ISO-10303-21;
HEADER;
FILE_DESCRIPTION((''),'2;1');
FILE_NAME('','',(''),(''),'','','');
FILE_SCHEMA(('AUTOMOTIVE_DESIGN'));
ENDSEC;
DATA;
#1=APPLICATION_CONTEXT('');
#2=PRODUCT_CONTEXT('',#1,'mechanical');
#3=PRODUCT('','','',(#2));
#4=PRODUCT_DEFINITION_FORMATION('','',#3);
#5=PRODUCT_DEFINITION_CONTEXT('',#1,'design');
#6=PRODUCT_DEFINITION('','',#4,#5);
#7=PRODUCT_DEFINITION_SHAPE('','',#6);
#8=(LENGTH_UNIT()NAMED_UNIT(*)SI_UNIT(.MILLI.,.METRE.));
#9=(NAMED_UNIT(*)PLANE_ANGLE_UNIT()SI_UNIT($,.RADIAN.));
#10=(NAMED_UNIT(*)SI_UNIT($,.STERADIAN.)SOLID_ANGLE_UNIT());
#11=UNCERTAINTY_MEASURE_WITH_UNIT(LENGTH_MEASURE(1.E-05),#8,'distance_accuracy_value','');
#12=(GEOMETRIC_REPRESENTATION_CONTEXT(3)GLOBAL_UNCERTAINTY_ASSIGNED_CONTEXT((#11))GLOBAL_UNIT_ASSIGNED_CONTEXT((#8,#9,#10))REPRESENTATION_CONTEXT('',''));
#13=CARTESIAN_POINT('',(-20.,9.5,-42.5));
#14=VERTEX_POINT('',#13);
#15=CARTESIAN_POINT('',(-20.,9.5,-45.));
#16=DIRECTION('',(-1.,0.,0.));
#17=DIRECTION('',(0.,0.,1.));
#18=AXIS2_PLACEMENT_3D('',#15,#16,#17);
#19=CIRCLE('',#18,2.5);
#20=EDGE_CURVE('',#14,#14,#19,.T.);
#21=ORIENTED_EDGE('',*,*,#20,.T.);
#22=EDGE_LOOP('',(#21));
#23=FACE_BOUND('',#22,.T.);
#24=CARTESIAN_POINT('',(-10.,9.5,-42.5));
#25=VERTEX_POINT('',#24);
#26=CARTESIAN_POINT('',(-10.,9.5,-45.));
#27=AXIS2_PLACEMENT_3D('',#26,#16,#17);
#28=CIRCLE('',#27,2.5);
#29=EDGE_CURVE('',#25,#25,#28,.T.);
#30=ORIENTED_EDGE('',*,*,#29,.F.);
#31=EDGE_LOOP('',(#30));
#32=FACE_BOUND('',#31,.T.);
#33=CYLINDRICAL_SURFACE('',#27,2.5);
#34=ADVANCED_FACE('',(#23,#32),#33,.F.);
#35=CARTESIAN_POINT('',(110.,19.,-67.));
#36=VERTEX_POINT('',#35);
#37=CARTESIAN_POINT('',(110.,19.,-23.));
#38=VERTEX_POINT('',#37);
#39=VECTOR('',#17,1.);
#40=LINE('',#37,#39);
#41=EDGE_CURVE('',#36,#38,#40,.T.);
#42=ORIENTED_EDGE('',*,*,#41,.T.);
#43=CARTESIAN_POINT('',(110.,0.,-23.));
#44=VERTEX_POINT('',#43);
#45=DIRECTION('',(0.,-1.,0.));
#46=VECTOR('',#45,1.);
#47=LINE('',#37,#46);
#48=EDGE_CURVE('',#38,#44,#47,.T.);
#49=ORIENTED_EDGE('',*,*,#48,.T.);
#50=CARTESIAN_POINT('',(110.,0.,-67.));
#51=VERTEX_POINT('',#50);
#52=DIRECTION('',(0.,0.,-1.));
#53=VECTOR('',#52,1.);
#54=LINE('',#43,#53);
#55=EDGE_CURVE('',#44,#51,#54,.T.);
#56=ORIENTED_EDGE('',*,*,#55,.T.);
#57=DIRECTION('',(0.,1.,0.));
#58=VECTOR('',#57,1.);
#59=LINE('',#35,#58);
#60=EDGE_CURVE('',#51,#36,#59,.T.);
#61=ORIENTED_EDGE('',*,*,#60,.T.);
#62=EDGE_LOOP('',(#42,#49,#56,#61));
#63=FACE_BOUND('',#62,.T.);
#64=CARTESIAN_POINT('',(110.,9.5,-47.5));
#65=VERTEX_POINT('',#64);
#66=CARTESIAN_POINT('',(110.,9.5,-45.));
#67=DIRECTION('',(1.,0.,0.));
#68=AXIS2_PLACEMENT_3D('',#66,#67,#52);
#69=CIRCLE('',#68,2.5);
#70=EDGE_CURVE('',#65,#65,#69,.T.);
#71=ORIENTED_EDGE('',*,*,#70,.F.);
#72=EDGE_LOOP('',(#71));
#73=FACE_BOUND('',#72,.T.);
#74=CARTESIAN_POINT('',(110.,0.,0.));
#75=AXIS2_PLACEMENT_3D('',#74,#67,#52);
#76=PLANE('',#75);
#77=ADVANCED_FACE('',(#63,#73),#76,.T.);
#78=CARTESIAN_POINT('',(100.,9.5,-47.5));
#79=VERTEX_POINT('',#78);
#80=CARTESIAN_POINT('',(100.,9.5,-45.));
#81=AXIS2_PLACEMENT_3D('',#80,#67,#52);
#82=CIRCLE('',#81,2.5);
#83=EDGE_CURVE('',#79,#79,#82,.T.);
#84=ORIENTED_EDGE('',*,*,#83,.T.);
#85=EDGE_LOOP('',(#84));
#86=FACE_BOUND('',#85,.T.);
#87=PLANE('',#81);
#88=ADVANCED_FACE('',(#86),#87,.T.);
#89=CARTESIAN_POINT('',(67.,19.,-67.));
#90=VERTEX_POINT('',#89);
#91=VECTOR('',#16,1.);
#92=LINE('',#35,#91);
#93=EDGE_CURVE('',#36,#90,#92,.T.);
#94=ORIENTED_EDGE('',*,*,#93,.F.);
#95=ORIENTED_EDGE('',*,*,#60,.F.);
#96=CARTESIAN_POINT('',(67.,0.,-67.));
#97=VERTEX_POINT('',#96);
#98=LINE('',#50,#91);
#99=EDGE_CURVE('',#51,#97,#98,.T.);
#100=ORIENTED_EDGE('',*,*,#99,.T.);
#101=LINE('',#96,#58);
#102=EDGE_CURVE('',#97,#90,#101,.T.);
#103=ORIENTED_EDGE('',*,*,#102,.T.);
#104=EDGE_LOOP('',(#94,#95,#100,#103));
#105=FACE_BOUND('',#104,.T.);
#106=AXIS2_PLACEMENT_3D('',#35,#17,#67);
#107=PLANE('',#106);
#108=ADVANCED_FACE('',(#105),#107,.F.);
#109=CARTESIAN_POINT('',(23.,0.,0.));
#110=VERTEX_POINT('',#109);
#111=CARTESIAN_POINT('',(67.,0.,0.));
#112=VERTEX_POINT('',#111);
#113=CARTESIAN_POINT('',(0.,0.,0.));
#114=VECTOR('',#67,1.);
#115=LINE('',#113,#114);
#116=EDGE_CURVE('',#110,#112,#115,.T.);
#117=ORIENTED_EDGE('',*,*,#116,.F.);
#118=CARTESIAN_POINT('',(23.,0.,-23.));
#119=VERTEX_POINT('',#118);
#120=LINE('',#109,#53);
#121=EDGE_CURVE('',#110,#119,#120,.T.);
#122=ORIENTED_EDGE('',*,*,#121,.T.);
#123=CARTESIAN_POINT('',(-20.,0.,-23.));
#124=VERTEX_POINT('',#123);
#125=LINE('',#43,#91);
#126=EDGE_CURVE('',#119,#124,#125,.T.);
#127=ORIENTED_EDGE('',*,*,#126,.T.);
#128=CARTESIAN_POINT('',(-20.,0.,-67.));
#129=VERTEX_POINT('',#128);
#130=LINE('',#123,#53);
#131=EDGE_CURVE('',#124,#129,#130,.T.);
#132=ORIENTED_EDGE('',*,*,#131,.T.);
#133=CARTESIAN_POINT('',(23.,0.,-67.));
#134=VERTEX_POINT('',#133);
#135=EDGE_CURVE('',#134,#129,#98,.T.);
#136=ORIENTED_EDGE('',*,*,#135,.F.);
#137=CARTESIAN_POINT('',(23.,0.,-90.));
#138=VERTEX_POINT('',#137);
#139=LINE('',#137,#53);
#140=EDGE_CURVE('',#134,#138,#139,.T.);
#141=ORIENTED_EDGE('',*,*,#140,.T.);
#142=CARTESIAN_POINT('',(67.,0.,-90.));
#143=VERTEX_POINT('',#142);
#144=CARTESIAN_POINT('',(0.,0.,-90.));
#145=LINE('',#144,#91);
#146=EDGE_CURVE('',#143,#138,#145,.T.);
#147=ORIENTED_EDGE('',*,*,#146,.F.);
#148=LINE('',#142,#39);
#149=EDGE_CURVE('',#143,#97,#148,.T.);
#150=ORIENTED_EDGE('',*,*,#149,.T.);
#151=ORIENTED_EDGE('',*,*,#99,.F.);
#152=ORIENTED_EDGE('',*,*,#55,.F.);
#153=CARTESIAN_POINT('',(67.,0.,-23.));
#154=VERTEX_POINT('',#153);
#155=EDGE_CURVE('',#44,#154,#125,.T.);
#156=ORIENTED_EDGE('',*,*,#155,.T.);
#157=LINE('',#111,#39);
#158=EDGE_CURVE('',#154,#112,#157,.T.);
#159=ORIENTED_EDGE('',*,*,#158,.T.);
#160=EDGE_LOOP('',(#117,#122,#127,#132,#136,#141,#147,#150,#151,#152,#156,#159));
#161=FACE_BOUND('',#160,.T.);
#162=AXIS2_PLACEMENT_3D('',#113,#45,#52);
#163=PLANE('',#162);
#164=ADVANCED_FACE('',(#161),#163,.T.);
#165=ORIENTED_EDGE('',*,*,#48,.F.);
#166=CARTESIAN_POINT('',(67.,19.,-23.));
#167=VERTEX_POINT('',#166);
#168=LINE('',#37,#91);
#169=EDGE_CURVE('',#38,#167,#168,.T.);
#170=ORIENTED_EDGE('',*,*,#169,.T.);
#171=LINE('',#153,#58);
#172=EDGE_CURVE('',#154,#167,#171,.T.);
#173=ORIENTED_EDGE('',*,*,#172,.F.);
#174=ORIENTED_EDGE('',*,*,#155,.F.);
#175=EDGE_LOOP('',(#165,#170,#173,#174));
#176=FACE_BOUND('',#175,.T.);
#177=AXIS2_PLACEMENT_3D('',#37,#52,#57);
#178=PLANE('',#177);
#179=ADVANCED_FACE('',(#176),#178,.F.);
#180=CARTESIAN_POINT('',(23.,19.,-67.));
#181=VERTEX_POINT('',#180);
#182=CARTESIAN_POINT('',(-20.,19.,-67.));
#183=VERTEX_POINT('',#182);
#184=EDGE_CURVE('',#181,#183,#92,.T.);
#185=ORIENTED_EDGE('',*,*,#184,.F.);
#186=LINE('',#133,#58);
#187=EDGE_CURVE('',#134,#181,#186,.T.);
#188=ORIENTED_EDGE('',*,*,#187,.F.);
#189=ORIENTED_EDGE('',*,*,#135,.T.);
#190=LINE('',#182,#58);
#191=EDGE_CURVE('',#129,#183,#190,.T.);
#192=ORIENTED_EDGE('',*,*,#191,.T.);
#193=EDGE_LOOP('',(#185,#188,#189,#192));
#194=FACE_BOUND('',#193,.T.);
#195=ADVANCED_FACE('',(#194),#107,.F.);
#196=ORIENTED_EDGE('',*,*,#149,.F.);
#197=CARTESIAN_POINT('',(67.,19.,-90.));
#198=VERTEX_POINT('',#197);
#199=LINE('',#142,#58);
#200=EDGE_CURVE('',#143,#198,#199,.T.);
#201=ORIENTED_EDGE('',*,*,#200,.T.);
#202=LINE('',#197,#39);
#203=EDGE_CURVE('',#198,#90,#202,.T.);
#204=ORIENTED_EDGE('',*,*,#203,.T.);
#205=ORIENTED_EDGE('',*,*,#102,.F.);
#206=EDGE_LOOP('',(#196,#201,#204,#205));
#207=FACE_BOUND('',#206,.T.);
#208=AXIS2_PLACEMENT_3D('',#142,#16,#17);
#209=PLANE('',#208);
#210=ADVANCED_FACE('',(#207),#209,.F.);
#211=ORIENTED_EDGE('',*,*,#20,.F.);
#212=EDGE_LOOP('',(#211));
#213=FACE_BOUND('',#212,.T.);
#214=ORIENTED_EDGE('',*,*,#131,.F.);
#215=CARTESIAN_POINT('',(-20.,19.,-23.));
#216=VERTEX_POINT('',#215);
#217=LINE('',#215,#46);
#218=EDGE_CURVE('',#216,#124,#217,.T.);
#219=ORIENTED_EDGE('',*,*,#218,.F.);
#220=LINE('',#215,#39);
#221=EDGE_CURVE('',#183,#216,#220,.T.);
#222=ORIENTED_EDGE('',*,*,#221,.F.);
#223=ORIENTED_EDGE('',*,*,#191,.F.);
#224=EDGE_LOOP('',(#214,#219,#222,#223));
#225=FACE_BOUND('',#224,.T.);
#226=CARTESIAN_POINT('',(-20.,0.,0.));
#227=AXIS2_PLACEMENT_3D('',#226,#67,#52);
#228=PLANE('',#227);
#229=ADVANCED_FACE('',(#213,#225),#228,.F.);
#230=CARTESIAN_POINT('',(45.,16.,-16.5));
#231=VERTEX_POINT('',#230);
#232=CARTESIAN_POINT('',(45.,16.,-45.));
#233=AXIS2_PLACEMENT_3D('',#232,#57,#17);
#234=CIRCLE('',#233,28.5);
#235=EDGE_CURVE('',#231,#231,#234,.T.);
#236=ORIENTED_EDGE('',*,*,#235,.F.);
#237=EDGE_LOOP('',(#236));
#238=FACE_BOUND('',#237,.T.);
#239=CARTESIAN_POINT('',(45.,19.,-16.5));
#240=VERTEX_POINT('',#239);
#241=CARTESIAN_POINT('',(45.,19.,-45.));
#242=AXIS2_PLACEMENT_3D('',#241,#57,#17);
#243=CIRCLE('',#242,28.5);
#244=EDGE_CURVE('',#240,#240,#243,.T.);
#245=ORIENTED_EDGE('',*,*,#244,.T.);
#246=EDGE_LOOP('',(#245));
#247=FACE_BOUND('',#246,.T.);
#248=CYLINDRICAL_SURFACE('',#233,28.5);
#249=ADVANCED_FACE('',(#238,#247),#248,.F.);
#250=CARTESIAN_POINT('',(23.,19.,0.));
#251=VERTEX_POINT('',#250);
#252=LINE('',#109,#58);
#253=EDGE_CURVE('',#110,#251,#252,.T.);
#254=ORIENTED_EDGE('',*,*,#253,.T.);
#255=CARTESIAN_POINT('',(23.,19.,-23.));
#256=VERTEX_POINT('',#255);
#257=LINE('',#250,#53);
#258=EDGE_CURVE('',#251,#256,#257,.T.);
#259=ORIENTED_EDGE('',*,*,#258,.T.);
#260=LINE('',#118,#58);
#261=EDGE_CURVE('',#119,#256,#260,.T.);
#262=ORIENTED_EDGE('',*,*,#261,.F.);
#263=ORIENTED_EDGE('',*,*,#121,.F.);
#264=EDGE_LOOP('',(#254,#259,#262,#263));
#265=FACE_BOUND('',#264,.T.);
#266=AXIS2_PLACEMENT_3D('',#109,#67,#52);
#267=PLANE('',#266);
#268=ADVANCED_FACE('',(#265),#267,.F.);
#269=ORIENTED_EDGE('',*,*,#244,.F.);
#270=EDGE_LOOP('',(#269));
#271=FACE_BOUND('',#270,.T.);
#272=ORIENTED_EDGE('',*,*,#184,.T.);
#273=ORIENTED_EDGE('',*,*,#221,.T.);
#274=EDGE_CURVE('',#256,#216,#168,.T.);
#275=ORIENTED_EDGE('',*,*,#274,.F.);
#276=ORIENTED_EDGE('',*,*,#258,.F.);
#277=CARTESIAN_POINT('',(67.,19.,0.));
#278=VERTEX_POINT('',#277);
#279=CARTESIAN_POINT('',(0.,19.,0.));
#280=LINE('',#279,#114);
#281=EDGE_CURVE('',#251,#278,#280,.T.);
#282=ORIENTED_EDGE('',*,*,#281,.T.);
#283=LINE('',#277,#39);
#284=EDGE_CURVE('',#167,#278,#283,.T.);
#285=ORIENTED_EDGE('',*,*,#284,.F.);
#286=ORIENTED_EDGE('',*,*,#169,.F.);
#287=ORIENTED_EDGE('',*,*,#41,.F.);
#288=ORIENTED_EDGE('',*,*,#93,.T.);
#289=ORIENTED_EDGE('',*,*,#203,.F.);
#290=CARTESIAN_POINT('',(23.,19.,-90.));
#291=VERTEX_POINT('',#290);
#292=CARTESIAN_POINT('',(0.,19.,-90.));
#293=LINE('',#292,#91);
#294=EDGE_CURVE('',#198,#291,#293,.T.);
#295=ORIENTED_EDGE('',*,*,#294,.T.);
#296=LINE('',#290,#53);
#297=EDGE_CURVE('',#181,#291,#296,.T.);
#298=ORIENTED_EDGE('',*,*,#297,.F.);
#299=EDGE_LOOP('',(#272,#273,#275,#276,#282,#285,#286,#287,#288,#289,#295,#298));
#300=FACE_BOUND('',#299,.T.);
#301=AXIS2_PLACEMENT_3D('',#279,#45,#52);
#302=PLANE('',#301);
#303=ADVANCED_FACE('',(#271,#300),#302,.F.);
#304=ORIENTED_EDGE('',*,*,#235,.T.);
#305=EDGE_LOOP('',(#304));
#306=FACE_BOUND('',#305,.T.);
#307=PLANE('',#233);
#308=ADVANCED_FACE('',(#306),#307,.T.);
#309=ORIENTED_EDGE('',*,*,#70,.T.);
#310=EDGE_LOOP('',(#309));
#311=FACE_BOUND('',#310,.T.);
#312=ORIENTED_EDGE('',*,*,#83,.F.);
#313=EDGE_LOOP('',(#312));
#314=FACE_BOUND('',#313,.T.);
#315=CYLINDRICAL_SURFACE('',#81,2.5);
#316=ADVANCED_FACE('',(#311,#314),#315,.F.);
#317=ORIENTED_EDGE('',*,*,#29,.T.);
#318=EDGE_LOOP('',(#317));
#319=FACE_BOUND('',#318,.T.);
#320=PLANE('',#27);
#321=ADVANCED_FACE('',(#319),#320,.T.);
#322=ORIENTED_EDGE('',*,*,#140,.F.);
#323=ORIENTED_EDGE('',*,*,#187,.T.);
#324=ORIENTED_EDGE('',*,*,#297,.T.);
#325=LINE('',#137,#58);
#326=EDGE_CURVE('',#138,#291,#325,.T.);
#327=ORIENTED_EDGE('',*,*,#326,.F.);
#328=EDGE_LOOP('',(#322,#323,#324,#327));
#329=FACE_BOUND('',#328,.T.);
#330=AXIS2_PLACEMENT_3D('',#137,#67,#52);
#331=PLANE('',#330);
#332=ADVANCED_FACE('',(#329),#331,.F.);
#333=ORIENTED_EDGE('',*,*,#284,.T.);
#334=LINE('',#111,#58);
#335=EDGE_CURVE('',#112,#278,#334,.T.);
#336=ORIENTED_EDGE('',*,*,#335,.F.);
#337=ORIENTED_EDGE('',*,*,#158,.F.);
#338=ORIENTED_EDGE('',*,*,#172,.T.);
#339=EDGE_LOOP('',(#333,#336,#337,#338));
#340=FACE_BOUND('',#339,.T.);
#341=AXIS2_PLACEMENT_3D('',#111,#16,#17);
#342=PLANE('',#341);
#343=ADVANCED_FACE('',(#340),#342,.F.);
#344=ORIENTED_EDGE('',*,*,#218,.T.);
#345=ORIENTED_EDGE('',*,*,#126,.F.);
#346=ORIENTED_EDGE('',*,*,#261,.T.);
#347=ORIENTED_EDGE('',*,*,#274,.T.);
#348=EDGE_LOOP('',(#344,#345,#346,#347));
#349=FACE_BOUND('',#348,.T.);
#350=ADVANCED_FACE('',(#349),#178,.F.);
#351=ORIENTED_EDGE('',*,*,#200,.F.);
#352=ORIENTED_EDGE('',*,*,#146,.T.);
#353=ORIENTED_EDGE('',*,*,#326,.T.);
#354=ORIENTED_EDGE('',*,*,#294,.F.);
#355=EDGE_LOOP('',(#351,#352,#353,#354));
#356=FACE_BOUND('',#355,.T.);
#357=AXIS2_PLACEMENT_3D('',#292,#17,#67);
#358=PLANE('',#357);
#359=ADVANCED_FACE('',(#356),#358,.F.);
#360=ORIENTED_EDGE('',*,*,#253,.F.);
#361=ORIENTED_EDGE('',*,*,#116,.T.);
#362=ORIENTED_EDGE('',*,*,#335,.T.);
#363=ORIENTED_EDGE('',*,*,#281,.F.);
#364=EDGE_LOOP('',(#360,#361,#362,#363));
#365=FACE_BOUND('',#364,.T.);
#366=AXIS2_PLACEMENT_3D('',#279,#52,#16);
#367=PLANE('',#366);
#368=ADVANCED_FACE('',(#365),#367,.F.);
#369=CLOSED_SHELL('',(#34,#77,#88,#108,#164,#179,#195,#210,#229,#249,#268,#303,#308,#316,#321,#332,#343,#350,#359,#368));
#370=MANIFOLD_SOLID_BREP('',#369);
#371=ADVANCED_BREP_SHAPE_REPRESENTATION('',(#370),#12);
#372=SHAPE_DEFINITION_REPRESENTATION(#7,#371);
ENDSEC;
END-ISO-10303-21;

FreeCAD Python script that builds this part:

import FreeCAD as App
import Part
import Sketcher

doc = App.newDocument("Part")
params = doc.addObject("Spreadsheet::Sheet", "Params")
for row, (alias, value) in enumerate([
    ("sketch1_width", "90 mm"),
    ("pad1_length", "19 mm"),
    ("sketch2_width", "19 mm"),
    ("sketch2_height", "44 mm"),
    ("pad2_length", "130 mm"),
    ("sketch3_diameter", "57 mm"),
    ("pocket1_length", "3 mm"),
    ("sketch4_width", "23 mm"),
    ("sketch5_diameter", "5 mm"),
    ("pocket3_length", "10 mm"),
    ("sketch6_diameter", "5 mm"),
    ("pocket4_length", "10 mm"),
], start=1):
    params.set(f"A{row}", alias)
    params.set(f"B{row}", "=" + value)
    params.setAlias(f"B{row}", alias)

body = doc.addObject("PartDesign::Body", "Body")

sketch1 = body.newObject("Sketcher::SketchObject", "Sketch")
sketch1.AttachmentSupport = (doc.getObject("XZ_Plane"), [""])
sketch1.MapMode = "FlatFace"
sketch1.addGeometry([
    Part.LineSegment(App.Vector(0, -90, 0), App.Vector(0, 0, 0)),
    Part.LineSegment(App.Vector(0, 0, 0), App.Vector(90, 0, 0)),
    Part.LineSegment(App.Vector(90, 0, 0), App.Vector(90, -90, 0)),
    Part.LineSegment(App.Vector(90, -90, 0), App.Vector(0, -90, 0)),
], False)
sketch1.addConstraint([
    Sketcher.Constraint("Coincident", 0, 2, 1, 1),
    Sketcher.Constraint("Coincident", 1, 2, 2, 1),
    Sketcher.Constraint("Coincident", 2, 2, 3, 1),
    Sketcher.Constraint("Coincident", 3, 2, 0, 1),
    Sketcher.Constraint("Vertical", 0),
    Sketcher.Constraint("Horizontal", 1),
    Sketcher.Constraint("Vertical", 2),
    Sketcher.Constraint("Horizontal", 3),
    Sketcher.Constraint("Coincident", 0, 2, -1, 1),
    Sketcher.Constraint("Equal", 3, 0),
    Sketcher.Constraint("DistanceX", 1, 1, 1, 2, 90.0),
])
sketch1.setExpression("Constraints[10]", "Params.sketch1_width")
pad1 = body.newObject("PartDesign::Pad", "Pad")
pad1.Profile = sketch1
pad1.setExpression("Length", "Params.pad1_length")
pad1.Reversed = True

sketch2 = body.newObject("Sketcher::SketchObject", "Sketch001")
sketch2.AttachmentSupport = (doc.getObject("YZ_Plane"), [""])
sketch2.MapMode = "FlatFace"
sketch2.AttachmentOffset = App.Placement(App.Vector(0, 0, 45), App.Rotation())
sketch2.addGeometry([
    Part.LineSegment(App.Vector(19, -23, 0), App.Vector(0, -23, 0)),
    Part.LineSegment(App.Vector(0, -23, 0), App.Vector(0, -67, 0)),
    Part.LineSegment(App.Vector(0, -67, 0), App.Vector(19, -67, 0)),
    Part.LineSegment(App.Vector(19, -67, 0), App.Vector(19, -23, 0)),
], False)
sketch2.addConstraint([
    Sketcher.Constraint("Coincident", 0, 2, 1, 1),
    Sketcher.Constraint("Coincident", 1, 2, 2, 1),
    Sketcher.Constraint("Coincident", 2, 2, 3, 1),
    Sketcher.Constraint("Coincident", 3, 2, 0, 1),
    Sketcher.Constraint("Horizontal", 0),
    Sketcher.Constraint("Vertical", 1),
    Sketcher.Constraint("Horizontal", 2),
    Sketcher.Constraint("Vertical", 3),
    Sketcher.Constraint("PointOnObject", 0, 2, -2),
    Sketcher.Constraint("DistanceX", 0, 2, 0, 1, 19.0),
    Sketcher.Constraint("DistanceY", 1, 2, 1, 1, 44.0),
    Sketcher.Constraint("DistanceY", 0, 2, -1, 1, 23.0),
])
sketch2.setExpression("Constraints[9]", "Params.sketch2_width")
sketch2.setExpression("Constraints[10]", "Params.sketch2_height")
pad2 = body.newObject("PartDesign::Pad", "Pad001")
pad2.Profile = sketch2
pad2.setExpression("Length", "Params.pad2_length")
pad2.Midplane = True

sketch3 = body.newObject("Sketcher::SketchObject", "Sketch002")
sketch3.AttachmentSupport = (doc.getObject("XZ_Plane"), [""])
sketch3.MapMode = "FlatFace"
sketch3.AttachmentOffset = App.Placement(App.Vector(0, 0, -19), App.Rotation())
sketch3.addGeometry(Part.Circle(App.Vector(45, -45, 0), App.Vector(0, 0, 1), 28), False)
sketch3.addConstraint([
    Sketcher.Constraint("Diameter", 0, 57.0),
    Sketcher.Constraint("DistanceX", -1, 1, 0, 3, 45.0),
    Sketcher.Constraint("DistanceY", 0, 3, -1, 1, 45.0),
])
sketch3.setExpression("Constraints[0]", "Params.sketch3_diameter")
pocket1 = body.newObject("PartDesign::Pocket", "Pocket")
pocket1.Profile = sketch3
pocket1.setExpression("Length", "Params.pocket1_length")
pocket1.Reversed = True

sketch4 = body.newObject("Sketcher::SketchObject", "Sketch003")
sketch4.AttachmentSupport = (doc.getObject("XZ_Plane"), [""])
sketch4.MapMode = "FlatFace"
sketch4.AttachmentOffset = App.Placement(App.Vector(0, 0, -19), App.Rotation())
sketch4.addGeometry([
    Part.LineSegment(App.Vector(0, -23, 0), App.Vector(0, 0, 0)),
    Part.LineSegment(App.Vector(0, 0, 0), App.Vector(23, 0, 0)),
    Part.LineSegment(App.Vector(23, 0, 0), App.Vector(23, -23, 0)),
    Part.LineSegment(App.Vector(23, -23, 0), App.Vector(0, -23, 0)),
    Part.LineSegment(App.Vector(0, -90, 0), App.Vector(0, -67, 0)),
    Part.LineSegment(App.Vector(0, -67, 0), App.Vector(23, -67, 0)),
    Part.LineSegment(App.Vector(23, -67, 0), App.Vector(23, -90, 0)),
    Part.LineSegment(App.Vector(23, -90, 0), App.Vector(0, -90, 0)),
    Part.LineSegment(App.Vector(67, -90, 0), App.Vector(67, -67, 0)),
    Part.LineSegment(App.Vector(67, -67, 0), App.Vector(90, -67, 0)),
    Part.LineSegment(App.Vector(90, -67, 0), App.Vector(90, -90, 0)),
    Part.LineSegment(App.Vector(90, -90, 0), App.Vector(67, -90, 0)),
    Part.LineSegment(App.Vector(67, -23, 0), App.Vector(67, 0, 0)),
    Part.LineSegment(App.Vector(67, 0, 0), App.Vector(90, 0, 0)),
    Part.LineSegment(App.Vector(90, 0, 0), App.Vector(90, -23, 0)),
    Part.LineSegment(App.Vector(90, -23, 0), App.Vector(67, -23, 0)),
], False)
sketch4.addConstraint([
    Sketcher.Constraint("Coincident", 0, 2, 1, 1),
    Sketcher.Constraint("Coincident", 1, 2, 2, 1),
    Sketcher.Constraint("Coincident", 2, 2, 3, 1),
    Sketcher.Constraint("Coincident", 3, 2, 0, 1),
    Sketcher.Constraint("Coincident", 4, 2, 5, 1),
    Sketcher.Constraint("Coincident", 5, 2, 6, 1),
    Sketcher.Constraint("Coincident", 6, 2, 7, 1),
    Sketcher.Constraint("Coincident", 7, 2, 4, 1),
    Sketcher.Constraint("Coincident", 8, 2, 9, 1),
    Sketcher.Constraint("Coincident", 9, 2, 10, 1),
    Sketcher.Constraint("Coincident", 10, 2, 11, 1),
    Sketcher.Constraint("Coincident", 11, 2, 8, 1),
    Sketcher.Constraint("Coincident", 12, 2, 13, 1),
    Sketcher.Constraint("Coincident", 13, 2, 14, 1),
    Sketcher.Constraint("Coincident", 14, 2, 15, 1),
    Sketcher.Constraint("Coincident", 15, 2, 12, 1),
    Sketcher.Constraint("Vertical", 0),
    Sketcher.Constraint("Horizontal", 1),
    Sketcher.Constraint("Vertical", 2),
    Sketcher.Constraint("Horizontal", 3),
    Sketcher.Constraint("Vertical", 4),
    Sketcher.Constraint("Horizontal", 5),
    Sketcher.Constraint("Vertical", 6),
    Sketcher.Constraint("Horizontal", 7),
    Sketcher.Constraint("Vertical", 8),
    Sketcher.Constraint("Horizontal", 9),
    Sketcher.Constraint("Vertical", 10),
    Sketcher.Constraint("Horizontal", 11),
    Sketcher.Constraint("Vertical", 12),
    Sketcher.Constraint("Horizontal", 13),
    Sketcher.Constraint("Vertical", 14),
    Sketcher.Constraint("Horizontal", 15),
    Sketcher.Constraint("Coincident", 0, 2, -1, 1),
    Sketcher.Constraint("PointOnObject", 4, 2, -2),
    Sketcher.Constraint("PointOnObject", 12, 2, -1),
    Sketcher.Constraint("Horizontal", 5, 2, 8, 2),
    Sketcher.Constraint("Horizontal", 7, 2, 10, 2),
    Sketcher.Constraint("Horizontal", 3, 2, 14, 2),
    Sketcher.Constraint("Vertical", 2, 2, 5, 2),
    Sketcher.Constraint("Vertical", 11, 2, 12, 2),
    Sketcher.Constraint("Vertical", 10, 2, 13, 2),
    Sketcher.Constraint("Equal", 7, 9),
    Sketcher.Constraint("Equal", 15, 0),
    Sketcher.Constraint("Equal", 2, 4),
    Sketcher.Constraint("DistanceX", 1, 1, 1, 2, 23.0),
    Sketcher.Constraint("DistanceY", 4, 2, -1, 1, 67.0),
    Sketcher.Constraint("DistanceX", -1, 1, 8, 2, 67.0),
])
sketch4.setExpression("Constraints[44]", "Params.sketch4_width")
pocket2 = body.newObject("PartDesign::Pocket", "Pocket001")
pocket2.Profile = sketch4
pocket2.Type = "ThroughAll"
pocket2.Reversed = True

sketch5 = body.newObject("Sketcher::SketchObject", "Sketch004")
sketch5.AttachmentSupport = (doc.getObject("YZ_Plane"), [""])
sketch5.MapMode = "FlatFace"
sketch5.AttachmentOffset = App.Placement(App.Vector(0, 0, 110), App.Rotation())
sketch5.addGeometry(Part.Circle(App.Vector(9.5, -45, 0), App.Vector(0, 0, 1), 2.5), False)
sketch5.addConstraint([
    Sketcher.Constraint("Diameter", 0, 5.0),
    Sketcher.Constraint("DistanceY", 0, 3, -1, 1, 45.0),
    Sketcher.Constraint("DistanceX", -1, 1, 0, 3, 9.5),
])
sketch5.setExpression("Constraints[0]", "Params.sketch5_diameter")
pocket3 = body.newObject("PartDesign::Pocket", "Pocket002")
pocket3.Profile = sketch5
pocket3.setExpression("Length", "Params.pocket3_length")

sketch6 = body.newObject("Sketcher::SketchObject", "Sketch005")
sketch6.AttachmentSupport = (doc.getObject("YZ_Plane"), [""])
sketch6.MapMode = "FlatFace"
sketch6.AttachmentOffset = App.Placement(App.Vector(0, 0, -20), App.Rotation())
sketch6.addGeometry(Part.Circle(App.Vector(9.5, -45, 0), App.Vector(0, 0, 1), 2.5), False)
sketch6.addConstraint([
    Sketcher.Constraint("Diameter", 0, 5.0),
    Sketcher.Constraint("DistanceY", 0, 3, -1, 1, 45.0),
    Sketcher.Constraint("DistanceX", -1, 1, 0, 3, 9.5),
])
sketch6.setExpression("Constraints[0]", "Params.sketch6_diameter")
pocket4 = body.newObject("PartDesign::Pocket", "Pocket003")
pocket4.Profile = sketch6
pocket4.setExpression("Length", "Params.pocket4_length")
pocket4.Reversed = True

doc.recompute()
